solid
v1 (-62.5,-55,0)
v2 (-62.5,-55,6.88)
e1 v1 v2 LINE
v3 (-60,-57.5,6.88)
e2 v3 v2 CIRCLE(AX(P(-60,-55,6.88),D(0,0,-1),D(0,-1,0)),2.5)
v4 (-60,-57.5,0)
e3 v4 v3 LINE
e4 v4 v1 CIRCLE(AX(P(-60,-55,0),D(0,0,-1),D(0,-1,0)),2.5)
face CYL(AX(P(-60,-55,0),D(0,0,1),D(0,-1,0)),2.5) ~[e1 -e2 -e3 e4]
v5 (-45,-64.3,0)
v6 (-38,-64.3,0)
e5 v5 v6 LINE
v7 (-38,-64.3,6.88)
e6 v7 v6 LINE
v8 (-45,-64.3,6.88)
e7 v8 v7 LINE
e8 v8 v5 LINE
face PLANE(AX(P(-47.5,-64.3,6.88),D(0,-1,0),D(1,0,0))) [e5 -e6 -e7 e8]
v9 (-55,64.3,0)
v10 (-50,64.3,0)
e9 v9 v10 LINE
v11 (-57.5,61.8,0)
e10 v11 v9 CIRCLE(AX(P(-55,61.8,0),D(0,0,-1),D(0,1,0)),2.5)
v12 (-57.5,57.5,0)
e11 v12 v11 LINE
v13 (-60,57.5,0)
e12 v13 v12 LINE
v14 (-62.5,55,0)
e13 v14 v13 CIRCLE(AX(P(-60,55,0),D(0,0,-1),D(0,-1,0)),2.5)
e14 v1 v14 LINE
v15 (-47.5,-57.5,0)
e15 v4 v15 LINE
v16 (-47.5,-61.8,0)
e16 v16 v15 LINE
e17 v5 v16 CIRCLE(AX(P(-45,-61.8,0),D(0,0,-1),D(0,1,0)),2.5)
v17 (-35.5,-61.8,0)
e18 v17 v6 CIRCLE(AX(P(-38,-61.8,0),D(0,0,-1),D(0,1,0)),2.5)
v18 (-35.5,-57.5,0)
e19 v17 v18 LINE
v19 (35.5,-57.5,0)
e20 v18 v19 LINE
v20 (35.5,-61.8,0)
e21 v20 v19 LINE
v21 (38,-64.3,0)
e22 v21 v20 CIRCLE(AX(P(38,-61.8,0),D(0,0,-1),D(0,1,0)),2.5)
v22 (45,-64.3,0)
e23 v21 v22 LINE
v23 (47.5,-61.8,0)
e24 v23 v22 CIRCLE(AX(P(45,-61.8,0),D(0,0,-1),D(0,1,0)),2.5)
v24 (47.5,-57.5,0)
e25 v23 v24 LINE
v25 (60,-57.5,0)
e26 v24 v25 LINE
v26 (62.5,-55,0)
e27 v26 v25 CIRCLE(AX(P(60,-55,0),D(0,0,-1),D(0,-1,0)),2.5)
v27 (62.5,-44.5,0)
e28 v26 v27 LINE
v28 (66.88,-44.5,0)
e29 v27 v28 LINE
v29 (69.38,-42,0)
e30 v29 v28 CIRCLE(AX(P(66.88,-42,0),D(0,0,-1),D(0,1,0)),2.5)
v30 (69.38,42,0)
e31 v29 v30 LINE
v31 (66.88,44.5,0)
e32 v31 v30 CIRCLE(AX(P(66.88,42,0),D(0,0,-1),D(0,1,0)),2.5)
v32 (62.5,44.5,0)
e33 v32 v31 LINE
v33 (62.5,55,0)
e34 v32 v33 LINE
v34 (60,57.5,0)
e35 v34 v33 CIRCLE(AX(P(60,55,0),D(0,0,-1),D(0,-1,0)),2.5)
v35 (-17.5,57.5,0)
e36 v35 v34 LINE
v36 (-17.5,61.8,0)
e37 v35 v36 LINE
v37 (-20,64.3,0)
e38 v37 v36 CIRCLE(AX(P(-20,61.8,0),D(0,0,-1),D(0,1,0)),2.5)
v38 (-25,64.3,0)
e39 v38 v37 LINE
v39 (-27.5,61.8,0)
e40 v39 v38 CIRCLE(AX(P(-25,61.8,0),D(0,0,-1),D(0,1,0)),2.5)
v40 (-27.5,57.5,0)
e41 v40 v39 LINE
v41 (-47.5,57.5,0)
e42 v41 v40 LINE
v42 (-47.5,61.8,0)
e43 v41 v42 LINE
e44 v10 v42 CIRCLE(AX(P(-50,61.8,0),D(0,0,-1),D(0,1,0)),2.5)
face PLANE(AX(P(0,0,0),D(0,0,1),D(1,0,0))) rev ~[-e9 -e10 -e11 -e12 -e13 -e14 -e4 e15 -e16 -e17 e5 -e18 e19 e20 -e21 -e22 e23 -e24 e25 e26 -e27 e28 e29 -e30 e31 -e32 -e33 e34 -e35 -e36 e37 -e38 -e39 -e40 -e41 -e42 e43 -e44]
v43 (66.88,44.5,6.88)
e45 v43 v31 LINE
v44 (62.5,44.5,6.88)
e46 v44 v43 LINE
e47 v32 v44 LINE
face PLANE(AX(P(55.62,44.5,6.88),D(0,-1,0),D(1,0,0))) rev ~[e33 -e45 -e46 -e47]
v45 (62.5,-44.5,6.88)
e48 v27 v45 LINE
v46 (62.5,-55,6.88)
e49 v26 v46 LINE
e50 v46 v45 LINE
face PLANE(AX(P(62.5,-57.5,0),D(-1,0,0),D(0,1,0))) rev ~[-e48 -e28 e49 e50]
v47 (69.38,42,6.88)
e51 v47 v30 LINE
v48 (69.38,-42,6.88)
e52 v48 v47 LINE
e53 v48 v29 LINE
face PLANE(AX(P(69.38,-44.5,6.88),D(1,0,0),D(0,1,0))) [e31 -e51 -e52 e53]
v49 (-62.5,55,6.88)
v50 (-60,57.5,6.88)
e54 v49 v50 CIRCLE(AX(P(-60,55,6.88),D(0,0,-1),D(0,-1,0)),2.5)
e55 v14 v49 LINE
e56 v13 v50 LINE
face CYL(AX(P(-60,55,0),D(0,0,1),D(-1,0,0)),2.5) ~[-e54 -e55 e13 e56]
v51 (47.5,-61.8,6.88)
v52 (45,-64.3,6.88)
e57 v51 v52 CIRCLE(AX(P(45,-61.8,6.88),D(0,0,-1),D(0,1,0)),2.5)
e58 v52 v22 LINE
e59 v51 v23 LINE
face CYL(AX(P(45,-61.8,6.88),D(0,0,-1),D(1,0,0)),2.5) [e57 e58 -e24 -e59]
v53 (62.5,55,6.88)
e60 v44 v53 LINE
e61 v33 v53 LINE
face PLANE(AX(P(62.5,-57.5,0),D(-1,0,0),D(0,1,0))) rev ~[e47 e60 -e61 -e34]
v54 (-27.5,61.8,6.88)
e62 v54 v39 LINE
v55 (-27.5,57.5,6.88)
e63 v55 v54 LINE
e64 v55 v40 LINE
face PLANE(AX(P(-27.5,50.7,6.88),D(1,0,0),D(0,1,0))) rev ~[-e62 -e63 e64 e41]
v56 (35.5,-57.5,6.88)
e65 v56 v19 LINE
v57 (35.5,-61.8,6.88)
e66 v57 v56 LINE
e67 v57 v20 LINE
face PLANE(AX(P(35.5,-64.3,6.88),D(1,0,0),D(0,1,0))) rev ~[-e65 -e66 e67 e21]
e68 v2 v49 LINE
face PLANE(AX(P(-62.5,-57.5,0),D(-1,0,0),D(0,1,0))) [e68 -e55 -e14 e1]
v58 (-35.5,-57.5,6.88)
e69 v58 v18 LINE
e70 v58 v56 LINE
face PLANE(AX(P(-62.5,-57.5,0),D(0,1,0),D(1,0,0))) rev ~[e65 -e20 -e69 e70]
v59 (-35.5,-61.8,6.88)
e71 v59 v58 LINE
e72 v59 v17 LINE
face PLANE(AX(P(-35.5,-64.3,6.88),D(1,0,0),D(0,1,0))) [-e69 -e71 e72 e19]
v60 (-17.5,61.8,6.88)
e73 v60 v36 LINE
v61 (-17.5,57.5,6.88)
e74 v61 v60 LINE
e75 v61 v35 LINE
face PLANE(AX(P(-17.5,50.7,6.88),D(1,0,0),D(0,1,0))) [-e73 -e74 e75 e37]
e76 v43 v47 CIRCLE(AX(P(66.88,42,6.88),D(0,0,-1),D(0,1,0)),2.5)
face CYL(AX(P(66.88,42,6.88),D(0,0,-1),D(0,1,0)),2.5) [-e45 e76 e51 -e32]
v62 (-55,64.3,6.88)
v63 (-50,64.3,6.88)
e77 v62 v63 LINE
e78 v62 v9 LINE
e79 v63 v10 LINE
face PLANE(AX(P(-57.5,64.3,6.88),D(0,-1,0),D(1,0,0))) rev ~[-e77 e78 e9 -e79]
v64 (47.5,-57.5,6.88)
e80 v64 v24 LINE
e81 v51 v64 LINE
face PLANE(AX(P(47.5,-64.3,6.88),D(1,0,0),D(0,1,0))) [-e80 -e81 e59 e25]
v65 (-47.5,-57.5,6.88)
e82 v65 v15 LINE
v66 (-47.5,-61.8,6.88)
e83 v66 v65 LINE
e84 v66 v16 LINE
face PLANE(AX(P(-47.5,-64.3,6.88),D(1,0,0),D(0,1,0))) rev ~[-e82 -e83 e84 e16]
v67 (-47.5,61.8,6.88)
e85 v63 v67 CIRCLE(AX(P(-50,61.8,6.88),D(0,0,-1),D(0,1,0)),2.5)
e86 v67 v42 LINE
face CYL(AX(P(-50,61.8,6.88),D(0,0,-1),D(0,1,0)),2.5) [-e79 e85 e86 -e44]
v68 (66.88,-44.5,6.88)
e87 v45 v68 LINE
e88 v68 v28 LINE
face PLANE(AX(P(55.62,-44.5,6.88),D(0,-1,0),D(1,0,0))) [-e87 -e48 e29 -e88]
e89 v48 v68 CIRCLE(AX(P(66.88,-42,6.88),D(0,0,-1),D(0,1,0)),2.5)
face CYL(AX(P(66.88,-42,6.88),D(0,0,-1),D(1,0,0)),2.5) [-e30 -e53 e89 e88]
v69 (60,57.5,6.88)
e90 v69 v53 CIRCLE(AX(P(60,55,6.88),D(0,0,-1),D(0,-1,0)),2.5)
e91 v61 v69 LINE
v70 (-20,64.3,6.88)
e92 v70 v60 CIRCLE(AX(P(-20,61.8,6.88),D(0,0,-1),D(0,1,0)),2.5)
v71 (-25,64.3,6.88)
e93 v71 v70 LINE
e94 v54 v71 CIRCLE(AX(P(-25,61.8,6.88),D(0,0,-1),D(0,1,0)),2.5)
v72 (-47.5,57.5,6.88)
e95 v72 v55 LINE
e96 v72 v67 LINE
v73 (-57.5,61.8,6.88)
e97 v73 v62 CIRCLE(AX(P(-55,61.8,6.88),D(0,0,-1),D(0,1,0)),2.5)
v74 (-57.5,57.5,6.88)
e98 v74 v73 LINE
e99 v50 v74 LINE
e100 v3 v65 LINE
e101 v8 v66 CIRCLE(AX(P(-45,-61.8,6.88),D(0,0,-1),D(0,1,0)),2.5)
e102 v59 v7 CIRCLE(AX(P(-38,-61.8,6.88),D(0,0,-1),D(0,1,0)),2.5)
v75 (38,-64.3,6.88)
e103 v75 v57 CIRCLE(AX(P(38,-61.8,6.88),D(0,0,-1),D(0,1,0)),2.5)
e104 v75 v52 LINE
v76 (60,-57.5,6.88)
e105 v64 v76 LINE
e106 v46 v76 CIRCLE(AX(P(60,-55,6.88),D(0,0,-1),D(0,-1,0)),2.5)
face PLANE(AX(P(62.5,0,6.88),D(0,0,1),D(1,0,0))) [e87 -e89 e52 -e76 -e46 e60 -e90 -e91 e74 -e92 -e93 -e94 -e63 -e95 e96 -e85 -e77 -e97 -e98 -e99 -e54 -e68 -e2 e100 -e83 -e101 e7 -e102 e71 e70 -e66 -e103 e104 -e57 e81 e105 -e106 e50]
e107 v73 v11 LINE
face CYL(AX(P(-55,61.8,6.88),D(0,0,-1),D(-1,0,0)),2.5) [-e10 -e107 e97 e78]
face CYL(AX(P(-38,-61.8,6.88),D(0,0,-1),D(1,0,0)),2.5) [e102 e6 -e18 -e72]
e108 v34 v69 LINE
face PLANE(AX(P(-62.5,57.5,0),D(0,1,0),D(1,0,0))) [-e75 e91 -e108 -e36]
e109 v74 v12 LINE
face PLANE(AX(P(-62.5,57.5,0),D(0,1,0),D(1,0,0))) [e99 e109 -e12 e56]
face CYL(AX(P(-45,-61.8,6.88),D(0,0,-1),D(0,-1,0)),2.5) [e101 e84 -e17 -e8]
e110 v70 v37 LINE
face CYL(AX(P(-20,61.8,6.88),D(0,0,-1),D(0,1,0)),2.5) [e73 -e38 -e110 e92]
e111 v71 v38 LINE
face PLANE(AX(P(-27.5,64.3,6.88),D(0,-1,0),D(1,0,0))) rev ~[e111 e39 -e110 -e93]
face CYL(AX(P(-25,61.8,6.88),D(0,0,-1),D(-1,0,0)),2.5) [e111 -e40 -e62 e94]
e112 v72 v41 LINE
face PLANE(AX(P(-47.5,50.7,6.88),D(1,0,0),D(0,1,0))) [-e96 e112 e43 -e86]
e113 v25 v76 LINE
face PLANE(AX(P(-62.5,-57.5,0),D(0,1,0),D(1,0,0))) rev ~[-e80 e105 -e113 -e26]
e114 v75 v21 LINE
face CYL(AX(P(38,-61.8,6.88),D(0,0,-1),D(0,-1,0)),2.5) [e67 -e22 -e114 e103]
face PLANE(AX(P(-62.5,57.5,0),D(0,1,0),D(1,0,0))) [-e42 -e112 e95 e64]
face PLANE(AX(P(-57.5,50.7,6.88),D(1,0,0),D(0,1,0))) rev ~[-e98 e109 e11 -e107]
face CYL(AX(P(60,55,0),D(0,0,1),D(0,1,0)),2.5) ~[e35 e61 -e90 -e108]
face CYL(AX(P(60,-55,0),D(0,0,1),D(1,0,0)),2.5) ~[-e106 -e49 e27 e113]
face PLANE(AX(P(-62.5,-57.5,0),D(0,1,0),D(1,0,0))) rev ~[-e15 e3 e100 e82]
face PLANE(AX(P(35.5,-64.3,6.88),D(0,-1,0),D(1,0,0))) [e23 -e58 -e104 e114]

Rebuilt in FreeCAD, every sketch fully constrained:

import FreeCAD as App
import Part
import Sketcher
from FreeCAD import Vector
Q = App.Units.Quantity


def edges_at(feature, points):
    """Names of the edges that pass closest to the given points."""
    edges = feature.Shape.Edges
    near = lambda p: min(range(len(edges)), key=lambda i: edges[i].distToShape(Part.Vertex(*p))[0])
    return sorted({f"Edge{near(p) + 1}" for p in points})

doc = App.newDocument("Part")
body = doc.addObject("PartDesign::Body", "Body")

# Sketch on XY plane
sketch1 = body.newObject("Sketcher::SketchObject", "Sketch")
sketch1.AttachmentSupport = (doc.getObject("XY_Plane"), [""])
sketch1.MapMode = "FlatFace"
sketch1.addGeometry(Part.LineSegment(Vector(-62, 58, 0), Vector(-62, -58, 0)), False)
sketch1.addGeometry(Part.LineSegment(Vector(-62, -58, 0), Vector(62, -58, 0)), False)
sketch1.addGeometry(Part.LineSegment(Vector(62, -58, 0), Vector(62, 58, 0)), False)
sketch1.addGeometry(Part.LineSegment(Vector(62, 58, 0), Vector(-62, 58, 0)), False)
sketch1.addConstraint(Sketcher.Constraint("Coincident", 0, 2, 1, 1))
sketch1.addConstraint(Sketcher.Constraint("Coincident", 1, 2, 2, 1))
sketch1.addConstraint(Sketcher.Constraint("Coincident", 2, 2, 3, 1))
sketch1.addConstraint(Sketcher.Constraint("Coincident", 3, 2, 0, 1))
sketch1.addConstraint(Sketcher.Constraint("Vertical", 0))
sketch1.addConstraint(Sketcher.Constraint("Horizontal", 1))
sketch1.addConstraint(Sketcher.Constraint("Vertical", 2))
sketch1.addConstraint(Sketcher.Constraint("Horizontal", 3))
sketch1.addConstraint(Sketcher.Constraint("Symmetric", 0, 2, 2, 2, -1, 1))
sketch1.addConstraint(Sketcher.Constraint("DistanceX", 1, 1, 1, 2, Q("125 mm")))
sketch1.addConstraint(Sketcher.Constraint("DistanceY", 0, 2, 0, 1, Q("115 mm")))
pad1 = body.newObject("PartDesign::Pad", "Pad")
pad1.Profile = sketch1
pad1.Length = 6.88

# Sketch on XY plane
sketch2 = body.newObject("Sketcher::SketchObject", "Sketch001")
sketch2.AttachmentSupport = (doc.getObject("XY_Plane"), [""])
sketch2.MapMode = "FlatFace"
sketch2.AttachmentOffset = App.Placement(Vector(0, 0, 6.88), App.Rotation())
sketch2.addGeometry(Part.LineSegment(Vector(-58, 64, 0), Vector(-58, 51, 0)), False)
sketch2.addGeometry(Part.LineSegment(Vector(-58, 51, 0), Vector(-48, 51, 0)), False)
sketch2.addGeometry(Part.LineSegment(Vector(-48, 51, 0), Vector(-48, 64, 0)), False)
sketch2.addGeometry(Part.LineSegment(Vector(-48, 64, 0), Vector(-58, 64, 0)), False)
sketch2.addGeometry(Part.LineSegment(Vector(-28, 64, 0), Vector(-28, 51, 0)), False)
sketch2.addGeometry(Part.LineSegment(Vector(-28, 51, 0), Vector(-18, 51, 0)), False)
sketch2.addGeometry(Part.LineSegment(Vector(-18, 51, 0), Vector(-18, 64, 0)), False)
sketch2.addGeometry(Part.LineSegment(Vector(-18, 64, 0), Vector(-28, 64, 0)), False)
sketch2.addGeometry(Part.LineSegment(Vector(-48, -51, 0), Vector(-48, -64, 0)), False)
sketch2.addGeometry(Part.LineSegment(Vector(-48, -64, 0), Vector(-36, -64, 0)), False)
sketch2.addGeometry(Part.LineSegment(Vector(-36, -64, 0), Vector(-36, -51, 0)), False)
sketch2.addGeometry(Part.LineSegment(Vector(-36, -51, 0), Vector(-48, -51, 0)), False)
sketch2.addGeometry(Part.LineSegment(Vector(36, -51, 0), Vector(36, -64, 0)), False)
sketch2.addGeometry(Part.LineSegment(Vector(36, -64, 0), Vector(48, -64, 0)), False)
sketch2.addGeometry(Part.LineSegment(Vector(48, -64, 0), Vector(48, -51, 0)), False)
sketch2.addGeometry(Part.LineSegment(Vector(48, -51, 0), Vector(36, -51, 0)), False)
sketch2.addConstraint(Sketcher.Constraint("Coincident", 0, 2, 1, 1))
sketch2.addConstraint(Sketcher.Constraint("Coincident", 1, 2, 2, 1))
sketch2.addConstraint(Sketcher.Constraint("Coincident", 2, 2, 3, 1))
sketch2.addConstraint(Sketcher.Constraint("Coincident", 3, 2, 0, 1))
sketch2.addConstraint(Sketcher.Constraint("Coincident", 4, 2, 5, 1))
sketch2.addConstraint(Sketcher.Constraint("Coincident", 5, 2, 6, 1))
sketch2.addConstraint(Sketcher.Constraint("Coincident", 6, 2, 7, 1))
sketch2.addConstraint(Sketcher.Constraint("Coincident", 7, 2, 4, 1))
sketch2.addConstraint(Sketcher.Constraint("Coincident", 8, 2, 9, 1))
sketch2.addConstraint(Sketcher.Constraint("Coincident", 9, 2, 10, 1))
sketch2.addConstraint(Sketcher.Constraint("Coincident", 10, 2, 11, 1))
sketch2.addConstraint(Sketcher.Constraint("Coincident", 11, 2, 8, 1))
sketch2.addConstraint(Sketcher.Constraint("Coincident", 12, 2, 13, 1))
sketch2.addConstraint(Sketcher.Constraint("Coincident", 13, 2, 14, 1))
sketch2.addConstraint(Sketcher.Constraint("Coincident", 14, 2, 15, 1))
sketch2.addConstraint(Sketcher.Constraint("Coincident", 15, 2, 12, 1))
sketch2.addConstraint(Sketcher.Constraint("Vertical", 0))
sketch2.addConstraint(Sketcher.Constraint("Horizontal", 1))
sketch2.addConstraint(Sketcher.Constraint("Vertical", 2))
sketch2.addConstraint(Sketcher.Constraint("Horizontal", 3))
sketch2.addConstraint(Sketcher.Constraint("Vertical", 4))
sketch2.addConstraint(Sketcher.Constraint("Horizontal", 5))
sketch2.addConstraint(Sketcher.Constraint("Vertical", 6))
sketch2.addConstraint(Sketcher.Constraint("Horizontal", 7))
sketch2.addConstraint(Sketcher.Constraint("Vertical", 8))
sketch2.addConstraint(Sketcher.Constraint("Horizontal", 9))
sketch2.addConstraint(Sketcher.Constraint("Vertical", 10))
sketch2.addConstraint(Sketcher.Constraint("Horizontal", 11))
sketch2.addConstraint(Sketcher.Constraint("Vertical", 12))
sketch2.addConstraint(Sketcher.Constraint("Horizontal", 13))
sketch2.addConstraint(Sketcher.Constraint("Vertical", 14))
sketch2.addConstraint(Sketcher.Constraint("Horizontal", 15))
sketch2.addConstraint(Sketcher.Constraint("Symmetric", 2, 2, 13, 2, -1, 1))
sketch2.addConstraint(Sketcher.Constraint("Symmetric", 9, 2, 12, 2, -2))
sketch2.addConstraint(Sketcher.Constraint("Symmetric", 11, 2, 14, 2, -2))
sketch2.addConstraint(Sketcher.Constraint("Horizontal", 1, 2, 4, 2))
sketch2.addConstraint(Sketcher.Constraint("Horizontal", 3, 2, 6, 2))
sketch2.addConstraint(Sketcher.Constraint("Equal", 3, 5))
sketch2.addConstraint(Sketcher.Constraint("Equal", 6, 8))
sketch2.addConstraint(Sketcher.Constraint("DistanceX", 1, 1, 1, 2, Q("10 mm")))
sketch2.addConstraint(Sketcher.Constraint("DistanceX", 9, 1, 9, 2, Q("12 mm")))
sketch2.addConstraint(Sketcher.Constraint("DistanceY", 0, 2, 0, 1, Q("13.6 mm")))
sketch2.addConstraint(Sketcher.Constraint("DistanceX", 1, 2, 4, 2, Q("20 mm")))
sketch2.addConstraint(Sketcher.Constraint("DistanceY", 8, 2, 1, 2, Q("115 mm")))
sketch2.addConstraint(Sketcher.Constraint("DistanceX", 9, 2, 12, 2, Q("71 mm")))
pad2 = body.newObject("PartDesign::Pad", "Pad001")
pad2.Profile = sketch2
pad2.Length = 6.88
pad2.Reversed = True

# Sketch on XY plane
sketch3 = body.newObject("Sketcher::SketchObject", "Sketch002")
sketch3.AttachmentSupport = (doc.getObject("XY_Plane"), [""])
sketch3.MapMode = "FlatFace"
sketch3.AttachmentOffset = App.Placement(Vector(0, 0, 6.88), App.Rotation())
sketch3.addGeometry(Part.LineSegment(Vector(56, 44, 0), Vector(56, -44, 0)), False)
sketch3.addGeometry(Part.LineSegment(Vector(56, -44, 0), Vector(69, -44, 0)), False)
sketch3.addGeometry(Part.LineSegment(Vector(69, -44, 0), Vector(69, 44, 0)), False)
sketch3.addGeometry(Part.LineSegment(Vector(69, 44, 0), Vector(56, 44, 0)), False)
sketch3.addConstraint(Sketcher.Constraint("Coincident", 0, 2, 1, 1))
sketch3.addConstraint(Sketcher.Constraint("Coincident", 1, 2, 2, 1))
sketch3.addConstraint(Sketcher.Constraint("Coincident", 2, 2, 3, 1))
sketch3.addConstraint(Sketcher.Constraint("Coincident", 3, 2, 0, 1))
sketch3.addConstraint(Sketcher.Constraint("Vertical", 0))
sketch3.addConstraint(Sketcher.Constraint("Horizontal", 1))
sketch3.addConstraint(Sketcher.Constraint("Vertical", 2))
sketch3.addConstraint(Sketcher.Constraint("Horizontal", 3))
sketch3.addConstraint(Sketcher.Constraint("DistanceY", 0, 2, 0, 1, Q("89 mm")))
sketch3.addConstraint(Sketcher.Constraint("DistanceX", 1, 1, 1, 2, Q("13.76 mm")))
sketch3.addConstraint(Sketcher.Constraint("DistanceY", 0, 2, -1, 1, Q("44.5 mm")))
sketch3.addConstraint(Sketcher.Constraint("DistanceX", -1, 1, 0, 2, Q("55.62 mm")))
pad3 = body.newObject("PartDesign::Pad", "Pad002")
pad3.Profile = sketch3
pad3.Length = 6.88
pad3.Reversed = True
doc.recompute()

fillet = body.newObject("PartDesign::Fillet", "Fillet")
fillet.Base = (pad3, edges_at(pad3, [
    (69.38, -44.5, 3.44),
    (69.38, 44.5, 3.44),
    (-47.5, 64.3, 3.44),
    (-57.5, 64.3, 3.44),
    (-17.5, 64.3, 3.44),
    (-27.5, 64.3, 3.44),
    (-47.5, -64.3, 3.44),
    (-35.5, -64.3, 3.44),
    (-62.5, 57.5, 3.44),
    (62.5, 57.5, 3.44),
    (35.5, -64.3, 3.44),
    (62.5, -57.5, 3.44),
    (-62.5, -57.5, 3.44),
    (47.5, -64.3, 3.44),
]))
fillet.Radius = 2.5

doc.recompute()
